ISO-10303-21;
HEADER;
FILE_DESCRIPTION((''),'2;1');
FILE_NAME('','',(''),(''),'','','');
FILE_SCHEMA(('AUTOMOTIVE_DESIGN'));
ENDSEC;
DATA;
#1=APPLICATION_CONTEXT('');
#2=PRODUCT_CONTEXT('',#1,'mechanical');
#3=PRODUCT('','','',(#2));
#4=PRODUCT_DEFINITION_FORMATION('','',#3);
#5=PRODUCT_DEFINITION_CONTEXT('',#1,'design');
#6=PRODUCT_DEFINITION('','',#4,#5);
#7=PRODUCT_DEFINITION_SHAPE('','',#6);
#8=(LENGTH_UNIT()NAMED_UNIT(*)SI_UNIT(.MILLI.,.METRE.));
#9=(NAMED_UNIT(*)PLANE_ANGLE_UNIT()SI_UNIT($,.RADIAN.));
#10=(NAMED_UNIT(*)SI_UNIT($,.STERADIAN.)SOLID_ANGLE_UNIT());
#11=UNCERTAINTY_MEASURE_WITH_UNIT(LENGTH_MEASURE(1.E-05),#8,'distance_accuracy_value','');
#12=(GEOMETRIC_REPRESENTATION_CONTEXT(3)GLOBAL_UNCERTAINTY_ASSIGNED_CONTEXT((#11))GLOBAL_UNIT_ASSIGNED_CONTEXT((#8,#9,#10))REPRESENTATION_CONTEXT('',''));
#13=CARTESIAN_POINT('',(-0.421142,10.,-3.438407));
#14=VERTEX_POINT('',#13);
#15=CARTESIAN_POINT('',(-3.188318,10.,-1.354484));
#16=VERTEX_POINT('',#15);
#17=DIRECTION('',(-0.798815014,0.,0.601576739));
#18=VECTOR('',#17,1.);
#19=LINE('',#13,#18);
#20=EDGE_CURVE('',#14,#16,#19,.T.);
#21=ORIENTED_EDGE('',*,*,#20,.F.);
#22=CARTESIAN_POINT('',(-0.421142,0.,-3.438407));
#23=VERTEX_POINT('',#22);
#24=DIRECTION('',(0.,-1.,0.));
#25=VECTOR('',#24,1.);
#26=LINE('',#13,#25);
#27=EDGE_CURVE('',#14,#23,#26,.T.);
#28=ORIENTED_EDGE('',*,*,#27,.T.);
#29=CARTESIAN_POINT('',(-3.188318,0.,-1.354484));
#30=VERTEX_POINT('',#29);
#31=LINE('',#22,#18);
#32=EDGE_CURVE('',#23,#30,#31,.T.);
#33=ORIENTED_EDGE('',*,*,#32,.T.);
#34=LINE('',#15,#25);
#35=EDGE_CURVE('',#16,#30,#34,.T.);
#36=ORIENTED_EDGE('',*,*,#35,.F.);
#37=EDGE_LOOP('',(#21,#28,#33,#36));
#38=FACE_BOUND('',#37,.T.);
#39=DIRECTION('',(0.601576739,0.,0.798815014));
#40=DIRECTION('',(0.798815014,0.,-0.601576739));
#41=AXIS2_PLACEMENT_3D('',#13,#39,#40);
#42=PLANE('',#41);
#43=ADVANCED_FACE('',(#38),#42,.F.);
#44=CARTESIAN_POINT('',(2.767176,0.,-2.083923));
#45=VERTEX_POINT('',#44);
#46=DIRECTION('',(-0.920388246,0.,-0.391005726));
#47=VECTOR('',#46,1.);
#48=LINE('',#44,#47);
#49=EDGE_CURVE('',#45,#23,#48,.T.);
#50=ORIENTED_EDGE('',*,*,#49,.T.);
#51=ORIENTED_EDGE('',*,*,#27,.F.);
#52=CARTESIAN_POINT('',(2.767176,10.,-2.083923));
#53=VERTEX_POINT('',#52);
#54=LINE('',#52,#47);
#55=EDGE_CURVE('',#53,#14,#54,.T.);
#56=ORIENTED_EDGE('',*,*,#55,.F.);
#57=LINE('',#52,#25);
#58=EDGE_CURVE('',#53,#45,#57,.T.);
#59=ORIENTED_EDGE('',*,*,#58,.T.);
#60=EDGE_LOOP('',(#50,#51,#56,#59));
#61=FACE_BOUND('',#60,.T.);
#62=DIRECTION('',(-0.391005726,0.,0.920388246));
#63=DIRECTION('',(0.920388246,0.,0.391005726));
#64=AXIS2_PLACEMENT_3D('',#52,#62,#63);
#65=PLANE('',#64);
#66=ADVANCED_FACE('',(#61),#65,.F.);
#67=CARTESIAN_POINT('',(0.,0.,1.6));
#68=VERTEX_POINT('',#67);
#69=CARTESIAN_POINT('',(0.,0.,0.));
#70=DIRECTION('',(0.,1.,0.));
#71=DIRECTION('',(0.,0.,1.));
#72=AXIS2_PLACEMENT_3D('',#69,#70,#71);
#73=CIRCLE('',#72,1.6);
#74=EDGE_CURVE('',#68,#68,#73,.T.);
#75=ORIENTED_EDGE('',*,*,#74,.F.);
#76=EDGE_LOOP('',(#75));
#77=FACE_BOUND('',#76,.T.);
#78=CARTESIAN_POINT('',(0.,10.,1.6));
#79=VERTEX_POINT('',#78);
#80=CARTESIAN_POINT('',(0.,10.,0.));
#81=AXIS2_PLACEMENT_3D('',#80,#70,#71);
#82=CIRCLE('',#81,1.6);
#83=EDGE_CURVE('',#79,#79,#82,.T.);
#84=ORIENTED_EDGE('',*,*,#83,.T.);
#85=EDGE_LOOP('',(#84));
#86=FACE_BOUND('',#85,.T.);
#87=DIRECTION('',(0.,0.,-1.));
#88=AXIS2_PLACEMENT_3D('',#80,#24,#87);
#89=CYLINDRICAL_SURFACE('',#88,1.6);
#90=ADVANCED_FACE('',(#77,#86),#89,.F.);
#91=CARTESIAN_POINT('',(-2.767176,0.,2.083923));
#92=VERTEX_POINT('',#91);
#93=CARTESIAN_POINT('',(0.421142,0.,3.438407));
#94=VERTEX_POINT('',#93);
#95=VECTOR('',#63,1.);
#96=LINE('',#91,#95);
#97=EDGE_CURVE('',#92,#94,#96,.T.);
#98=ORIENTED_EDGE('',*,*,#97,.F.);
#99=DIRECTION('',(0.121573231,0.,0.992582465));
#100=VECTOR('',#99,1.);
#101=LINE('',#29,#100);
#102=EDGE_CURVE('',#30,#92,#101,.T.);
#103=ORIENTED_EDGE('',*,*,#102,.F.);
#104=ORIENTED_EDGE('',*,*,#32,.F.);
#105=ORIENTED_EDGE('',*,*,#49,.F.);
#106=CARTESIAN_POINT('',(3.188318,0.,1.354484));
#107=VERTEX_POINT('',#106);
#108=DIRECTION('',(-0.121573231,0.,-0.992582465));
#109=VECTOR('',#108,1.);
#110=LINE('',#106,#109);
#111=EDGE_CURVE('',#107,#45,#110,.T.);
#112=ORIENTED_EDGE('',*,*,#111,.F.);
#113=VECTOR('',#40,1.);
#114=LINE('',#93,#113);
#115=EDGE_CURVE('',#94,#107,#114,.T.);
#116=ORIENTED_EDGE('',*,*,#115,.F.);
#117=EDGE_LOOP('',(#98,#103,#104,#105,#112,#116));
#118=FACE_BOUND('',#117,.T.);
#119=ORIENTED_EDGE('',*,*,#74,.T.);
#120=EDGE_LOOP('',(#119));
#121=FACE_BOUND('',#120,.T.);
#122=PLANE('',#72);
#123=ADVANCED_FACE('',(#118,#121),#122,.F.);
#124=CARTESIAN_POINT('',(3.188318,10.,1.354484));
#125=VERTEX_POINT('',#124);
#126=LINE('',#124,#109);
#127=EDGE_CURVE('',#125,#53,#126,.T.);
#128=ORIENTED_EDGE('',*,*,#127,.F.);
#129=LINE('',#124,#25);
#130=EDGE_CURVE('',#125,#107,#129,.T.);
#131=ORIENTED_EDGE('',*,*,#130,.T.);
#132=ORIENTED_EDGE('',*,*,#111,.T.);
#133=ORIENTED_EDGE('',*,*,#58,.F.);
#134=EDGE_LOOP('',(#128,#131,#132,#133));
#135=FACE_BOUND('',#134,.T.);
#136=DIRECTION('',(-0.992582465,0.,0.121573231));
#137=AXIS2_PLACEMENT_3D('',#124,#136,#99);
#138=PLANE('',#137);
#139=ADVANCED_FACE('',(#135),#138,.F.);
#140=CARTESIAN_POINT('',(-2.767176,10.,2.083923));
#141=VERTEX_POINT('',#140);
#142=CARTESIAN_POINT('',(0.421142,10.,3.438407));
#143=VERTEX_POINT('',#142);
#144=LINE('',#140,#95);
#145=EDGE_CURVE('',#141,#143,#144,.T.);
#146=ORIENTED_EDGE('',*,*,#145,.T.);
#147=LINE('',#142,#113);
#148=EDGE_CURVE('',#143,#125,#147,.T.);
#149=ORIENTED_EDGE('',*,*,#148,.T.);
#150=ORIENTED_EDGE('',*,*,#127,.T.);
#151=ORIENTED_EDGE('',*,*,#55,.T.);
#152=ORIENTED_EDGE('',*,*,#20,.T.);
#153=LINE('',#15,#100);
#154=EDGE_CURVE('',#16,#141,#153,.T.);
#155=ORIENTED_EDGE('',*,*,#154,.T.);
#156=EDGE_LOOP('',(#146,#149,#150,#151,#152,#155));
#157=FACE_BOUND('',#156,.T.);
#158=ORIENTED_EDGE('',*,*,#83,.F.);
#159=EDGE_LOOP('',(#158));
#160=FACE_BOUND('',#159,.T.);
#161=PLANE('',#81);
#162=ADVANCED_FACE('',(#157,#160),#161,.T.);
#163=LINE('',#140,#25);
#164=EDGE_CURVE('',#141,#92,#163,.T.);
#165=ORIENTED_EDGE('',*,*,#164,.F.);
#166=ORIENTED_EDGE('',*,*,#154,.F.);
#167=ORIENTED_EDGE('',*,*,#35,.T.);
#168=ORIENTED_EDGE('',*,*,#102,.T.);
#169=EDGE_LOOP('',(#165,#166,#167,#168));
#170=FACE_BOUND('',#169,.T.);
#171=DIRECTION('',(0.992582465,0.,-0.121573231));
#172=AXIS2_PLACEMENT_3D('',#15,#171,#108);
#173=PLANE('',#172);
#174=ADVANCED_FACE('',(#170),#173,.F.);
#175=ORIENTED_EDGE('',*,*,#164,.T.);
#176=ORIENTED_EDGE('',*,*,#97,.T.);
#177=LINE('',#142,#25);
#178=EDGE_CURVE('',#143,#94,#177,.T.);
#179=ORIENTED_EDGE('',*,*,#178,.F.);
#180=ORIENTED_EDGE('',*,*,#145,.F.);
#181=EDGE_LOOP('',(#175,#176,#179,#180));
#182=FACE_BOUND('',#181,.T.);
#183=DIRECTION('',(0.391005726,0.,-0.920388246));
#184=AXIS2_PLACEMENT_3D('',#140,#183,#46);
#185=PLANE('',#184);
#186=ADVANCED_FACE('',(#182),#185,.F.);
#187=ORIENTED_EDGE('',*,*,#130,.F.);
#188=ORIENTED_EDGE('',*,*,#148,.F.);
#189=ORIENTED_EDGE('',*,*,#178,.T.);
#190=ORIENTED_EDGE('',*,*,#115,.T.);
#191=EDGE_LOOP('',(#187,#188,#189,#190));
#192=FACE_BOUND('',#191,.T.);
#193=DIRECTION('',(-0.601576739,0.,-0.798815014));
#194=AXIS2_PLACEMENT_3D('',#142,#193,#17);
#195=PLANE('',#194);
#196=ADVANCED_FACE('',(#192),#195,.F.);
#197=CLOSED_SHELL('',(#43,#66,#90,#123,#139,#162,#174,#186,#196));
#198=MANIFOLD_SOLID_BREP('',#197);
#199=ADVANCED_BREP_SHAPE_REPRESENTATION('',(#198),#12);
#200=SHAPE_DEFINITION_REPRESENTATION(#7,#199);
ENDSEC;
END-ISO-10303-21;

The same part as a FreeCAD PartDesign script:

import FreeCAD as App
import Part
import Sketcher

V = App.Vector

doc = App.newDocument("Part")
body = doc.addObject("PartDesign::Body", "Body")

sketch1 = body.newObject("Sketcher::SketchObject", "Sketch")
sketch1.AttachmentSupport = (doc.getObject("XZ_Plane"), [""])
sketch1.MapMode = "FlatFace"
sketch1.addGeometry([
    Part.LineSegment(V(2.8, -2.1, 0), V(-0.4, -3.4, 0)),
    Part.LineSegment(V(-0.4, -3.4, 0), V(-3.2, -1.4, 0)),
    Part.LineSegment(V(-3.2, -1.4, 0), V(-2.8, 2.1, 0)),
    Part.LineSegment(V(-2.8, 2.1, 0), V(0.4, 3.4, 0)),
    Part.LineSegment(V(0.4, 3.4, 0), V(3.2, 1.4, 0)),
    Part.LineSegment(V(3.2, 1.4, 0), V(2.8, -2.1, 0)),
    Part.Circle(V(0, 0, 0), V(0, 0, 1), 1.6),
], False)
sketch1.addConstraint([
    Sketcher.Constraint("Coincident", 0, 2, 1, 1),
    Sketcher.Constraint("Coincident", 1, 2, 2, 1),
    Sketcher.Constraint("Coincident", 2, 2, 3, 1),
    Sketcher.Constraint("Coincident", 3, 2, 4, 1),
    Sketcher.Constraint("Coincident", 4, 2, 5, 1),
    Sketcher.Constraint("Coincident", 5, 2, 0, 1),
    Sketcher.Constraint("Coincident", 6, 3, -1, 1),
    Sketcher.Constraint("Symmetric", 0, 2, 3, 2, -1, 1),
    Sketcher.Constraint("Symmetric", 1, 2, 4, 2, -1, 1),
    Sketcher.Constraint("Symmetric", 2, 2, 5, 2, -1, 1),
    Sketcher.Constraint("Equal", 0, 1),
    Sketcher.Constraint("Equal", 1, 2),
    Sketcher.Constraint("Diameter", 6, 3.2),
    Sketcher.Constraint("Distance", 0, 3.464102),
    Sketcher.Constraint("DistanceX", 1, 2, -1, 1, 3.188318),
    Sketcher.Constraint("DistanceY", 0, 2, 2, 2, 5.522329),
    Sketcher.Constraint("DistanceX", 2, 2, 3, 2, 3.188318),
])
pad1 = body.newObject("PartDesign::Pad", "Pad")
pad1.Profile = sketch1
pad1.Length = 10
pad1.Reversed = True

doc.recompute()
